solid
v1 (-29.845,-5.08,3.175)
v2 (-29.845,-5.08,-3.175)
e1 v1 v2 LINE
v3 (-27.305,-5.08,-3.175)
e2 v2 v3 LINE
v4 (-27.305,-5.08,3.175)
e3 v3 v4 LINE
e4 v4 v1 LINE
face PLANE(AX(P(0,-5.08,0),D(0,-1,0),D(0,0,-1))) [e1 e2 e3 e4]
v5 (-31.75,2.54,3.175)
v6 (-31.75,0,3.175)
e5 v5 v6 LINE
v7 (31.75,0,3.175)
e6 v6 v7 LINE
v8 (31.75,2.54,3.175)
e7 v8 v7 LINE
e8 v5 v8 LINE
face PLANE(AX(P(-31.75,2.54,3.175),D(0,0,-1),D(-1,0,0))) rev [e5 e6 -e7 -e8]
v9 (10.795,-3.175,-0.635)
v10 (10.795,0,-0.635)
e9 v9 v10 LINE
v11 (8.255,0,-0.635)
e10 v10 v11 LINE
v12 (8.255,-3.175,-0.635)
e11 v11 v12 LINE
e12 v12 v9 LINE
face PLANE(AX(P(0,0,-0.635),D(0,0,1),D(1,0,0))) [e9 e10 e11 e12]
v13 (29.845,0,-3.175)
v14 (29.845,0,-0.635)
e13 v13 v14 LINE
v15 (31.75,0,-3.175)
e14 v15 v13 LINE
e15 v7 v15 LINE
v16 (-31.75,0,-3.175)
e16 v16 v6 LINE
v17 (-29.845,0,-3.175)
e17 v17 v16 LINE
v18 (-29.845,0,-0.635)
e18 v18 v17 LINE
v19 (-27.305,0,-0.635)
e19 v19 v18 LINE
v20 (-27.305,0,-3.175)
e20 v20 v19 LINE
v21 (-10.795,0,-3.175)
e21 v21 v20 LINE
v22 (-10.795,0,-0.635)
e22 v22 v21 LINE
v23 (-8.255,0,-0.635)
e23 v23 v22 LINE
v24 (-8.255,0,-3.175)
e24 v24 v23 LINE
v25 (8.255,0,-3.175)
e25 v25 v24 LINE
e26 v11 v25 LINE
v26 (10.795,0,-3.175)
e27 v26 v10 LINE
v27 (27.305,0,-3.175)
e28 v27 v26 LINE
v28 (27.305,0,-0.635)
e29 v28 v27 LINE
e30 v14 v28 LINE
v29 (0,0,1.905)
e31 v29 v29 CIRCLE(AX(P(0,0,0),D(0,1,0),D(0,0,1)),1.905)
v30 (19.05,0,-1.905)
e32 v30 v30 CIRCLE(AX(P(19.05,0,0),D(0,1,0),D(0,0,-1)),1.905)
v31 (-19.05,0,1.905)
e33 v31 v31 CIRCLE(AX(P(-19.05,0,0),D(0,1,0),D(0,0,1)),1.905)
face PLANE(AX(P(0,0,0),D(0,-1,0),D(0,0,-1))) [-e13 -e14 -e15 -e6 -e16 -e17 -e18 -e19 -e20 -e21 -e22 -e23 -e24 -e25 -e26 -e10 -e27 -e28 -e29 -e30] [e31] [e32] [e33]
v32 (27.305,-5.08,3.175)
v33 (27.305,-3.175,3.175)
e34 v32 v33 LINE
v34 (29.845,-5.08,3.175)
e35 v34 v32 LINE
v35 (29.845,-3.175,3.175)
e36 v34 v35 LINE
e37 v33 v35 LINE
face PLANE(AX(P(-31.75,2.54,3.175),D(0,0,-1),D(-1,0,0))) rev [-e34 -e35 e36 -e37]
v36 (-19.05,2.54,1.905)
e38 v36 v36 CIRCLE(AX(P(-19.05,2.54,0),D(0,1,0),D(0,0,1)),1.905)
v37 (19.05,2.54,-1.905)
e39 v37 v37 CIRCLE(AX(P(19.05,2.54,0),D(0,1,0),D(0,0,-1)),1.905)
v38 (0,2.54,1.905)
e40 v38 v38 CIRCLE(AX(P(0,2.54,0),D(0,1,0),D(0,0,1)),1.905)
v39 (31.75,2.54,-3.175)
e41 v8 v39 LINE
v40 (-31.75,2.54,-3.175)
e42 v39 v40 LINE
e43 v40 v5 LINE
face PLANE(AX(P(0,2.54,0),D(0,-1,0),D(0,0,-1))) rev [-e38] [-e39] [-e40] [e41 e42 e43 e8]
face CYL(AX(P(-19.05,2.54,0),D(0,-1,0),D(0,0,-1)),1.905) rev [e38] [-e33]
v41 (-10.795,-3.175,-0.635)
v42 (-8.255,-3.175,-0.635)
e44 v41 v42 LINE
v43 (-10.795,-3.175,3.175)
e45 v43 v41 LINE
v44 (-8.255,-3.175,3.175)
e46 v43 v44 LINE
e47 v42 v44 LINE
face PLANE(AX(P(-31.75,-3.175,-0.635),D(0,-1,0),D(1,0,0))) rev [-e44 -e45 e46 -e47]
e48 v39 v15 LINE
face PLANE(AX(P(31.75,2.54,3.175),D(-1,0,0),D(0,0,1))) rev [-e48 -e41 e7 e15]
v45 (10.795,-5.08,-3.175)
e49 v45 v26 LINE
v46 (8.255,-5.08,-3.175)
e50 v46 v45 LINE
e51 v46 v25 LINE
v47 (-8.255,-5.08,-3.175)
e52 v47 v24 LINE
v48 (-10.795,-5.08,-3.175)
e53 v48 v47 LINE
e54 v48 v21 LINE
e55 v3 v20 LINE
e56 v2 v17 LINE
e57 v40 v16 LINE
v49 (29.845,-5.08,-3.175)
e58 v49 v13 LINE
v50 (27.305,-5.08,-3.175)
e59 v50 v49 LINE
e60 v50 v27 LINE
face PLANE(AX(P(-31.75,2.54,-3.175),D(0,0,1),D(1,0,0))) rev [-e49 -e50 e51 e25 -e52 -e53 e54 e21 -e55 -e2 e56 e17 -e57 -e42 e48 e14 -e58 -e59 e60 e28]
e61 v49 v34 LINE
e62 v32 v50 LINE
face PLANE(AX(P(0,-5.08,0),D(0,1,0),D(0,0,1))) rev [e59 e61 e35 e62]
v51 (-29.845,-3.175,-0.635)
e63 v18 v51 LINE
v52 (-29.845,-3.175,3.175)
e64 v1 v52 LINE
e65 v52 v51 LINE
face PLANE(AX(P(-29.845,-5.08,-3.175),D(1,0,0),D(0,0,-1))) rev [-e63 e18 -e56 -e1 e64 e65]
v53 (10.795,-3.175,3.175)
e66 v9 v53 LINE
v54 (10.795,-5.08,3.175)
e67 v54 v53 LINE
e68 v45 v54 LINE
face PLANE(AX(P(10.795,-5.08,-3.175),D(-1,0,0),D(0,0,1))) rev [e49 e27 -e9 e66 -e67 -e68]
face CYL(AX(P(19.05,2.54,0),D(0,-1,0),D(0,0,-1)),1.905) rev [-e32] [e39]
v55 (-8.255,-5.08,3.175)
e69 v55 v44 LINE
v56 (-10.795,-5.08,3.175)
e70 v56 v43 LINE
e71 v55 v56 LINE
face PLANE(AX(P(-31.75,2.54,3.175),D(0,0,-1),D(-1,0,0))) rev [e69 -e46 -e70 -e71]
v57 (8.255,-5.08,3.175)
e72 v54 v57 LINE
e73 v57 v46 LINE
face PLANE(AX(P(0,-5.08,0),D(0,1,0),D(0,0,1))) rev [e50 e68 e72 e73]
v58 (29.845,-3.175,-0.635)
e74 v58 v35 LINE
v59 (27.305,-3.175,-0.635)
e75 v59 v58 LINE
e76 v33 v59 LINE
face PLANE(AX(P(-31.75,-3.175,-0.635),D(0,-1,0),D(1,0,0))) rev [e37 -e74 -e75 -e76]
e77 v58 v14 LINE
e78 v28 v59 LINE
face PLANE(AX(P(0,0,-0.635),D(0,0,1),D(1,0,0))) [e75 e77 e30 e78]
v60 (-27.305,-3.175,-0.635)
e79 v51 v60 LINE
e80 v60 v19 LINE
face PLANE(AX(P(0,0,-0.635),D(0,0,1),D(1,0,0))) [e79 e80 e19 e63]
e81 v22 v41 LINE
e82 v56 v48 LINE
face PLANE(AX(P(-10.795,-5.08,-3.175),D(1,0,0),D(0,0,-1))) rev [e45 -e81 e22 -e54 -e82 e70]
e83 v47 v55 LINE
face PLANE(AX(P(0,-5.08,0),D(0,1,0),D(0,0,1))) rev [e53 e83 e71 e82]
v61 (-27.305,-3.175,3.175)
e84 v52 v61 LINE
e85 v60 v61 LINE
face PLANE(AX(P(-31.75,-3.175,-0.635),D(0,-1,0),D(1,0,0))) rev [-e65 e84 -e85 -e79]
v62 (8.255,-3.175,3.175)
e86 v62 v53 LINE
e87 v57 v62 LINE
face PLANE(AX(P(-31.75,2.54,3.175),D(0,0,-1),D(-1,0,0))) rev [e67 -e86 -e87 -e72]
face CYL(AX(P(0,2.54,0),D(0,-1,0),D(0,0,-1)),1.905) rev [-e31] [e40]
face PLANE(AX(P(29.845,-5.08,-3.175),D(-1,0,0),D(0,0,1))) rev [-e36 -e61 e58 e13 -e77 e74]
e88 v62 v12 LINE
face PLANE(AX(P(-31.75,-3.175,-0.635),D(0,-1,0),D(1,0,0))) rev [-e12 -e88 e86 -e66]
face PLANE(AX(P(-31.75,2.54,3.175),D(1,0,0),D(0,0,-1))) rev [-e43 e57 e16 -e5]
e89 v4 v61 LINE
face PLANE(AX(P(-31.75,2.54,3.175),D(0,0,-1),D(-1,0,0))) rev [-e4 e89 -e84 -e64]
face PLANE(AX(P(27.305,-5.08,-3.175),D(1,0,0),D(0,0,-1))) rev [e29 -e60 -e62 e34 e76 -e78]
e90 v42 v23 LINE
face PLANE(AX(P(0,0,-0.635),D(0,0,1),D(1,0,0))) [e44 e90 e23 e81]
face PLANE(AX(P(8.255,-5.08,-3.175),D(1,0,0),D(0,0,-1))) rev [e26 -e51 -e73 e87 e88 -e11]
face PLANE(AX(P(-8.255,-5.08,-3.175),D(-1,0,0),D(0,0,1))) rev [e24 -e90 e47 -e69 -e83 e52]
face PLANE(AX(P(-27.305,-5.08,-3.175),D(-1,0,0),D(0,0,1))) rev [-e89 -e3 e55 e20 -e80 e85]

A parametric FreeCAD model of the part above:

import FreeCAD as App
import Part
import Sketcher

V = App.Vector
Q = App.Units.Quantity


def add_polygon(sketch, points):
    """Adds a closed chain of lines whose ends are joined by coincident constraints."""
    first, n = sketch.GeometryCount, len(points)
    for a, b in zip(points, points[1:] + points[:1]):
        sketch.addGeometry(Part.LineSegment(App.Vector(*a, 0), App.Vector(*b, 0)), False)
    for i in range(n):
        sketch.addConstraint(Sketcher.Constraint("Coincident", first + i, 2, first + (i + 1) % n, 1))

doc = App.newDocument("Part")
body = doc.addObject("PartDesign::Body", "Body")

# Sketch on XZ plane
sketch1 = body.newObject("Sketcher::SketchObject", "Sketch")
sketch1.AttachmentSupport = (doc.getObject("XZ_Plane"), [""])
sketch1.MapMode = "FlatFace"
add_polygon(sketch1, [(-31.8, -3.2), (-31.8, 3.2), (31.8, 3.2), (31.8, -3.2)])  # lines 0-3
sketch1.addGeometry(Part.Circle(V(-19.1, 0, 0), V(0, 0, 1), 1.9), False)  # 4
sketch1.addGeometry(Part.Circle(V(0, 0, 0), V(0, 0, 1), 1.9), False)  # 5
sketch1.addGeometry(Part.Circle(V(19.1, 0, 0), V(0, 0, 1), 1.9), False)  # 6
sketch1.addConstraint([
    Sketcher.Constraint("Vertical", 0),
    Sketcher.Constraint("Horizontal", 1),
    Sketcher.Constraint("Vertical", 2),
    Sketcher.Constraint("Horizontal", 3),
    Sketcher.Constraint("Coincident", 5, 3, -1, 1),
    Sketcher.Constraint("Equal", 4, 5),
    Sketcher.Constraint("Equal", 5, 6),
    Sketcher.Constraint("Symmetric", 4, 3, 6, 3, -1, 1),
    Sketcher.Constraint("Symmetric", 0, 2, 2, 2, -1, 1),
    Sketcher.Constraint("PointOnObject", 4, 3, -1),
    Sketcher.Constraint("Diameter", 4, Q("0.15 in")),
    Sketcher.Constraint("DistanceX", 1, 1, 1, 2, Q("2.5 in")),
    Sketcher.Constraint("DistanceX", 0, 2, 6, 3, Q("2 in")),
    Sketcher.Constraint("DistanceY", 0, 1, 0, 2, Q("0.25 in")),
])
pad1 = body.newObject("PartDesign::Pad", "Pad")
pad1.Profile = sketch1
pad1.Length = Q("0.1 in")
pad1.Reversed = True

# Sketch on XZ plane
sketch2 = body.newObject("Sketcher::SketchObject", "Sketch001")
sketch2.AttachmentSupport = (doc.getObject("XZ_Plane"), [""])
sketch2.MapMode = "FlatFace"
add_polygon(sketch2, [(-10.8, 3.2), (-10.8, -3.2), (-8.3, -3.2), (-8.3, 3.2)])  # lines 0-3
add_polygon(sketch2, [(-29.8, 3.2), (-29.8, -3.2), (-27.3, -3.2), (-27.3, 3.2)])  # lines 4-7
add_polygon(sketch2, [(8.3, 3.2), (8.3, -3.2), (10.8, -3.2), (10.8, 3.2)])  # lines 8-11
add_polygon(sketch2, [(27.3, 3.2), (27.3, -3.2), (29.8, -3.2), (29.8, 3.2)])  # lines 12-15
sketch2.addConstraint([
    Sketcher.Constraint("Vertical", 0),
    Sketcher.Constraint("Horizontal", 1),
    Sketcher.Constraint("Vertical", 2),
    Sketcher.Constraint("Horizontal", 3),
    Sketcher.Constraint("Vertical", 4),
    Sketcher.Constraint("Horizontal", 5),
    Sketcher.Constraint("Vertical", 6),
    Sketcher.Constraint("Horizontal", 7),
    Sketcher.Constraint("Vertical", 8),
    Sketcher.Constraint("Horizontal", 9),
    Sketcher.Constraint("Vertical", 10),
    Sketcher.Constraint("Horizontal", 11),
    Sketcher.Constraint("Vertical", 12),
    Sketcher.Constraint("Horizontal", 13),
    Sketcher.Constraint("Vertical", 14),
    Sketcher.Constraint("Horizontal", 15),
    Sketcher.Constraint("Symmetric", 2, 2, 8, 2, -1, 1),
    Sketcher.Constraint("Symmetric", 0, 2, 10, 2, -1, 1),
    Sketcher.Constraint("Symmetric", 6, 2, 12, 2, -1, 1),
    Sketcher.Constraint("Symmetric", 4, 2, 14, 2, -1, 1),
    Sketcher.Constraint("Horizontal", 1, 2, 4, 2),
    Sketcher.Constraint("Horizontal", 3, 2, 6, 2),
    Sketcher.Constraint("Horizontal", 5, 2, 8, 2),
    Sketcher.Constraint("Equal", 3, 5),
    Sketcher.Constraint("DistanceX", 1, 1, 1, 2, Q("0.1 in")),
    Sketcher.Constraint("DistanceY", 0, 2, 0, 1, Q("0.25 in")),
    Sketcher.Constraint("DistanceX", 5, 2, 8, 2, Q("1.4 in")),
    Sketcher.Constraint("DistanceX", 4, 2, 0, 2, Q("0.75 in")),
])
pad2 = body.newObject("PartDesign::Pad", "Pad001")
pad2.Profile = sketch2
pad2.Length = Q("0.2 in")

# Sketch on XY plane
sketch3 = body.newObject("Sketcher::SketchObject", "Sketch002")
sketch3.AttachmentSupport = (doc.getObject("XY_Plane"), [""])
sketch3.MapMode = "FlatFace"
sketch3.AttachmentOffset = App.Placement(V(0, 0, 0.125 * 25.4), App.Rotation())
add_polygon(sketch3, [(-31.8, 0), (-31.8, -3.2), (31.8, -3.2), (31.8, 0)])  # lines 0-3
sketch3.addConstraint([
    Sketcher.Constraint("Vertical", 0),
    Sketcher.Constraint("Horizontal", 1),
    Sketcher.Constraint("Vertical", 2),
    Sketcher.Constraint("Horizontal", 3),
    Sketcher.Constraint("Symmetric", 2, 2, 3, 2, -1, 1),
    Sketcher.Constraint("DistanceX", 1, 1, 1, 2, Q("2.5 in")),
    Sketcher.Constraint("DistanceY", 0, 2, 0, 1, Q("0.125 in")),
])
pocket1 = body.newObject("PartDesign::Pocket", "Pocket")
pocket1.Profile = sketch3
pocket1.Length = Q("0.15 in")

doc.recompute()
